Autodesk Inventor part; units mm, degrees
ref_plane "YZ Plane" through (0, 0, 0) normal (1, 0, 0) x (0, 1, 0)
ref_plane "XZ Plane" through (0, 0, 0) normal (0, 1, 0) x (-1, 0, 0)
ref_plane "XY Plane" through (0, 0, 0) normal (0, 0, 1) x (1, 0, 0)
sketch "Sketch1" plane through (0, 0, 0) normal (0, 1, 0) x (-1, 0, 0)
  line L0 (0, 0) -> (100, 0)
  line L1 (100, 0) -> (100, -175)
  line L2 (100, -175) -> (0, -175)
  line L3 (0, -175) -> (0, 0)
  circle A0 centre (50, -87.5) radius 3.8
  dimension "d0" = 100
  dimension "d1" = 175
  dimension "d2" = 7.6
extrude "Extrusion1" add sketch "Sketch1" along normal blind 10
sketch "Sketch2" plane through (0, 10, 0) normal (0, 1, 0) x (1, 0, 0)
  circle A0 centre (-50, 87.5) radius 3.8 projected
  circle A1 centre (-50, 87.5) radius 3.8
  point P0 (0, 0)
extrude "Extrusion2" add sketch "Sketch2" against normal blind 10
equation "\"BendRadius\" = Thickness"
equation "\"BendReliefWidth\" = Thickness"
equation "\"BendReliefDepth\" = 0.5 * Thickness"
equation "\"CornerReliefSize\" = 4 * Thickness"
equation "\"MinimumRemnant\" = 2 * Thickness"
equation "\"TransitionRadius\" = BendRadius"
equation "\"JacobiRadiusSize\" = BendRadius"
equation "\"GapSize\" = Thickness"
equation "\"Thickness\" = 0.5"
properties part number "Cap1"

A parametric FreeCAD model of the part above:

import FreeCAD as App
import Part
import Sketcher


def add_polygon(sketch, points):
    """Adds a closed chain of lines whose ends are joined by coincident constraints."""
    first, n = sketch.GeometryCount, len(points)
    for a, b in zip(points, points[1:] + points[:1]):
        sketch.addGeometry(Part.LineSegment(App.Vector(*a, 0), App.Vector(*b, 0)), False)
    for i in range(n):
        sketch.addConstraint(Sketcher.Constraint("Coincident", first + i, 2, first + (i + 1) % n, 1))

doc = App.newDocument("Part")
body = doc.addObject("PartDesign::Body", "Body")

sketch1 = body.newObject("Sketcher::SketchObject", "Sketch")
sketch1.AttachmentSupport = (doc.getObject("XZ_Plane"), [""])
sketch1.MapMode = "FlatFace"
add_polygon(sketch1, [(-100, 0), (0, 0), (0, -175), (-100, -175)])
sketch1.addGeometry(Part.Circle(App.Vector(-50, -87.5, 0), App.Vector(0, 0, 1), 3.8), False)
sketch1.addConstraint([
    Sketcher.Constraint("Horizontal", 0),
    Sketcher.Constraint("Vertical", 1),
    Sketcher.Constraint("Horizontal", 2),
    Sketcher.Constraint("Vertical", 3),
    Sketcher.Constraint("Coincident", 0, 2, -1, 1),
    Sketcher.Constraint("Diameter", 4, 7.6),
    Sketcher.Constraint("DistanceX", 0, 1, 0, 2, 100.0),
    Sketcher.Constraint("DistanceY", 1, 2, 1, 1, 175.0),
    Sketcher.Constraint("DistanceX", 4, 3, -1, 1, 50.0),
    Sketcher.Constraint("DistanceY", 4, 3, -1, 1, 87.5),
])
pad1 = body.newObject("PartDesign::Pad", "Pad")
pad1.Profile = sketch1
pad1.Length = 10
pad1.Reversed = True

sketch2 = body.newObject("Sketcher::SketchObject", "Sketch001")
sketch2.AttachmentSupport = (doc.getObject("XZ_Plane"), [""])
sketch2.MapMode = "FlatFace"
sketch2.AttachmentOffset = App.Placement(App.Vector(0, 0, -10), App.Rotation())
sketch2.addGeometry(Part.Circle(App.Vector(-50, -87.5, 0), App.Vector(0, 0, 1), 3.8), False)
sketch2.addConstraint([
    Sketcher.Constraint("Diameter", 0, 7.6),
    Sketcher.Constraint("DistanceX", 0, 3, -1, 1, 50.0),
    Sketcher.Constraint("DistanceY", 0, 3, -1, 1, 87.5),
])
pad2 = body.newObject("PartDesign::Pad", "Pad001")
pad2.Profile = sketch2
pad2.Length = 10

doc.recompute()
